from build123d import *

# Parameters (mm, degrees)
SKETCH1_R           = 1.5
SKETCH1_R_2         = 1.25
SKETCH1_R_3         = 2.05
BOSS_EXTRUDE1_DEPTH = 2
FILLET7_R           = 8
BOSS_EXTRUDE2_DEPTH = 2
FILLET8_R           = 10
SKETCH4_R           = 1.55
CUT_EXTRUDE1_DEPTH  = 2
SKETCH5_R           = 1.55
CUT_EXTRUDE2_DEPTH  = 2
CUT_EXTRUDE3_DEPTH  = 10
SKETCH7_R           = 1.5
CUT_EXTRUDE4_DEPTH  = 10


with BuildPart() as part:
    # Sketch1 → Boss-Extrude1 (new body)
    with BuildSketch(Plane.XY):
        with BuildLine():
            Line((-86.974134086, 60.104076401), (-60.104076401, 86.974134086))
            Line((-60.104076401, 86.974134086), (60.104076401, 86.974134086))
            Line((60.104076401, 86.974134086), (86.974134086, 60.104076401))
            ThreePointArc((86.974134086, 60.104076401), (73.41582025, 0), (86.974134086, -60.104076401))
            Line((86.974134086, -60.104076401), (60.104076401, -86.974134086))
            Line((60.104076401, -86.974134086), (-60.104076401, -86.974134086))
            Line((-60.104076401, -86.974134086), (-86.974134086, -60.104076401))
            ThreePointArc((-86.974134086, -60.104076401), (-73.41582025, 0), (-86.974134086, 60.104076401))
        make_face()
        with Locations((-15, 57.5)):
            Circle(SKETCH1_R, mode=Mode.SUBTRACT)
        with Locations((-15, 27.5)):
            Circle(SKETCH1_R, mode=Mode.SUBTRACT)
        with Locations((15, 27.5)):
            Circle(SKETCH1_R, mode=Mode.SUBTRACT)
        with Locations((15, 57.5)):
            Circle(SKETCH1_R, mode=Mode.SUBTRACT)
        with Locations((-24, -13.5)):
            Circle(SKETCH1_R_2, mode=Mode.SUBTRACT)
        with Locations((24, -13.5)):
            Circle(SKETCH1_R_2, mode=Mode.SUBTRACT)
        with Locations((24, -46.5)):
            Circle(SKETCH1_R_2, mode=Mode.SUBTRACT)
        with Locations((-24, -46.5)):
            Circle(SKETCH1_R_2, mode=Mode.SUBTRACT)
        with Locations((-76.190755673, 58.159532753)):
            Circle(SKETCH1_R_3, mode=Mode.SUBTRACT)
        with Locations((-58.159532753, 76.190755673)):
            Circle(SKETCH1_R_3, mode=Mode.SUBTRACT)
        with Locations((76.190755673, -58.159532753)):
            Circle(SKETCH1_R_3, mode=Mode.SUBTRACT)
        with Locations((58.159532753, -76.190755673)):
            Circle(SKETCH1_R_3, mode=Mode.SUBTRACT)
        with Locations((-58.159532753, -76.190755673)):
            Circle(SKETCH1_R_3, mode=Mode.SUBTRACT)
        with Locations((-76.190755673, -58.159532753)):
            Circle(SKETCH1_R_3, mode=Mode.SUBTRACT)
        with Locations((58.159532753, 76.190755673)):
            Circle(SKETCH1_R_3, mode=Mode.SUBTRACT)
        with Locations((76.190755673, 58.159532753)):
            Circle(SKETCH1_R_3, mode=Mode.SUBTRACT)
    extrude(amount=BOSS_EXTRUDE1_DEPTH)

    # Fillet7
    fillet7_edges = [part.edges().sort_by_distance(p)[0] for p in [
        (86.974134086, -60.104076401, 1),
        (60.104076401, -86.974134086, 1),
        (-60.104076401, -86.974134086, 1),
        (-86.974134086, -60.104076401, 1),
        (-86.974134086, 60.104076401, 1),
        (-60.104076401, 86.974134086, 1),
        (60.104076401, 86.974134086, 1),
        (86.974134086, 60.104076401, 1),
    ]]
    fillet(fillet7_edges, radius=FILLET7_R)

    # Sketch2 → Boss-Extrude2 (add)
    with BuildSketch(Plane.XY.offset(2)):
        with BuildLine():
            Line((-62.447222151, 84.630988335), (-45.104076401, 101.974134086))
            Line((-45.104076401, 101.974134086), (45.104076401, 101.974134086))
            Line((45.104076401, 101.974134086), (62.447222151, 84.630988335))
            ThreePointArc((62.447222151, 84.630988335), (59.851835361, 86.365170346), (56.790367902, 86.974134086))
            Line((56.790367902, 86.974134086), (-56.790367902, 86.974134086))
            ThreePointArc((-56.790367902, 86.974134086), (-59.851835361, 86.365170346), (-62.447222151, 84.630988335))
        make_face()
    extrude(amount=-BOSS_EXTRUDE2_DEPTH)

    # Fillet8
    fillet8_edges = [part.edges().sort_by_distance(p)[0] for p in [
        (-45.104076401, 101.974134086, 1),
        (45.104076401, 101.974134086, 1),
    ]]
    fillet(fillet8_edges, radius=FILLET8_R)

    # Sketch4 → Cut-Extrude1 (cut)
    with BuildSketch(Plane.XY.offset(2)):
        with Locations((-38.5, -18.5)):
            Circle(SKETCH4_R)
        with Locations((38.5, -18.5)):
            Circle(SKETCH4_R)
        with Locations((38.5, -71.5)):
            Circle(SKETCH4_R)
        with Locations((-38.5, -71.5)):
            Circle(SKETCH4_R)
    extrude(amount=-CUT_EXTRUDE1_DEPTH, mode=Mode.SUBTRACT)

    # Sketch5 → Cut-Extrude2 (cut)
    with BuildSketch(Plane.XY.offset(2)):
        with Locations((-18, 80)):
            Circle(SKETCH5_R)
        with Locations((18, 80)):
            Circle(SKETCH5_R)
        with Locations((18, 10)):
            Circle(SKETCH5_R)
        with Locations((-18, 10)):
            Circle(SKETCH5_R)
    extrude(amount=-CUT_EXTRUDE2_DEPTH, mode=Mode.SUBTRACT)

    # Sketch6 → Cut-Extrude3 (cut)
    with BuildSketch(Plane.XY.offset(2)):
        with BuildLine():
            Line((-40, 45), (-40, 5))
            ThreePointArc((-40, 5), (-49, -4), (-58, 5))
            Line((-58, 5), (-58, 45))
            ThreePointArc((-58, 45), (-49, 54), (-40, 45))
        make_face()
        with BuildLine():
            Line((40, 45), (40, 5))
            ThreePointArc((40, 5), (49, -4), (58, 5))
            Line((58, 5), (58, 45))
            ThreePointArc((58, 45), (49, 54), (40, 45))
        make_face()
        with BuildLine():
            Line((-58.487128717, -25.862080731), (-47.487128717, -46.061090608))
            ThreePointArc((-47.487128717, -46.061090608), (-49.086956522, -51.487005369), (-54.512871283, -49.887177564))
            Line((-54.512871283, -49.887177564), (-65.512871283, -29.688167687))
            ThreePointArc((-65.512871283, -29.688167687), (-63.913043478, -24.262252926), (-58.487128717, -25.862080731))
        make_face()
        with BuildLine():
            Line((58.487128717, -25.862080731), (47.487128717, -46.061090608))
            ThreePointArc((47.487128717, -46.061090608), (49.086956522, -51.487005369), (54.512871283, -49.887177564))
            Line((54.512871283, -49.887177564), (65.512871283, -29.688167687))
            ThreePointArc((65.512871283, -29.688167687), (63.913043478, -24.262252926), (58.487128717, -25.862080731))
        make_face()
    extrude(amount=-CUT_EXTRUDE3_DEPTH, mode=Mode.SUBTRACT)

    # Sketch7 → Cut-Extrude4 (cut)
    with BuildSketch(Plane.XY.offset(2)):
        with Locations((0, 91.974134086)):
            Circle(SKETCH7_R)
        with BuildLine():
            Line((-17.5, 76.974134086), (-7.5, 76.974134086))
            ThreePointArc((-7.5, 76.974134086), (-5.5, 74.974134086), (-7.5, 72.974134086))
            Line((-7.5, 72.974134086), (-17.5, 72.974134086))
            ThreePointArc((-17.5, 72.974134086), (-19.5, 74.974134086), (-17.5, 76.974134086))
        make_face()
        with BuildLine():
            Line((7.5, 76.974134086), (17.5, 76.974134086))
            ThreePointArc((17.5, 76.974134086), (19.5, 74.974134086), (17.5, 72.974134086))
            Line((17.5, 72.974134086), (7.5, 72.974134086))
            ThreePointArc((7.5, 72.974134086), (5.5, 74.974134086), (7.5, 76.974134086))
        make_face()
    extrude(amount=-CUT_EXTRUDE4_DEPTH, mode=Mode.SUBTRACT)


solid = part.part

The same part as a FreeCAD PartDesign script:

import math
import FreeCAD as App
import Part
import Sketcher

V = App.Vector


def edges_at(feature, points):
    """Names of the edges that pass closest to the given points."""
    edges = feature.Shape.Edges
    near = lambda p: min(range(len(edges)), key=lambda i: edges[i].distToShape(Part.Vertex(*p))[0])
    return sorted({f"Edge{near(p) + 1}" for p in points})

doc = App.newDocument("Part")
body = doc.addObject("PartDesign::Body", "Body")

# Sketch on XY plane
sketch1 = doc.addObject("Sketcher::SketchObject", "Sketch")
body.addObject(sketch1)
sketch1.AttachmentSupport = (doc.XY_Plane, [""])
sketch1.MapMode = "FlatFace"
sketch1.addGeometry(Part.LineSegment(V(-60.1, 87, 0), V(-87, 60.1, 0)), False)
sketch1.addGeometry(Part.ArcOfCircle(Part.Circle(V(-213.4, 0, 0), V(0, 0, 1), 140), math.radians(-25), math.radians(25)), False)
sketch1.addGeometry(Part.LineSegment(V(-87, -60.1, 0), V(-60.1, -87, 0)), False)
sketch1.addGeometry(Part.LineSegment(V(-60.1, -87, 0), V(60.1, -87, 0)), False)
sketch1.addGeometry(Part.LineSegment(V(60.1, -87, 0), V(87, -60.1, 0)), False)
sketch1.addGeometry(Part.ArcOfCircle(Part.Circle(V(213.4, 0, 0), V(0, 0, 1), 140), math.radians(155), math.radians(205)), False)
sketch1.addGeometry(Part.LineSegment(V(87, 60.1, 0), V(60.1, 87, 0)), False)
sketch1.addGeometry(Part.LineSegment(V(60.1, 87, 0), V(-60.1, 87, 0)), False)
sketch1.addGeometry(Part.Circle(V(58.2, -76.2, 0), V(0, 0, 1), 2), False)
sketch1.addGeometry(Part.Circle(V(76.2, -58.2, 0), V(0, 0, 1), 2), False)
sketch1.addGeometry(Part.Circle(V(24, -46.5, 0), V(0, 0, 1), 1.2), False)
sketch1.addGeometry(Part.Circle(V(24, -13.5, 0), V(0, 0, 1), 1.2), False)
sketch1.addGeometry(Part.Circle(V(-24, -46.5, 0), V(0, 0, 1), 1.2), False)
sketch1.addGeometry(Part.Circle(V(-58.2, -76.2, 0), V(0, 0, 1), 2), False)
sketch1.addGeometry(Part.Circle(V(-76.2, -58.2, 0), V(0, 0, 1), 2), False)
sketch1.addGeometry(Part.Circle(V(-24, -13.5, 0), V(0, 0, 1), 1.2), False)
sketch1.addGeometry(Part.Circle(V(15, 27.5, 0), V(0, 0, 1), 1.5), False)
sketch1.addGeometry(Part.Circle(V(76.2, 58.2, 0), V(0, 0, 1), 2), False)
sketch1.addGeometry(Part.Circle(V(58.2, 76.2, 0), V(0, 0, 1), 2), False)
sketch1.addGeometry(Part.Circle(V(15, 57.5, 0), V(0, 0, 1), 1.5), False)
sketch1.addGeometry(Part.Circle(V(-15, 27.5, 0), V(0, 0, 1), 1.5), False)
sketch1.addGeometry(Part.Circle(V(-15, 57.5, 0), V(0, 0, 1), 1.5), False)
sketch1.addGeometry(Part.Circle(V(-76.2, 58.2, 0), V(0, 0, 1), 2), False)
sketch1.addGeometry(Part.Circle(V(-58.2, 76.2, 0), V(0, 0, 1), 2), False)
sketch1.addConstraint(Sketcher.Constraint("Coincident", 0, 2, 1, 2))
sketch1.addConstraint(Sketcher.Constraint("Coincident", 1, 1, 2, 1))
sketch1.addConstraint(Sketcher.Constraint("Coincident", 2, 2, 3, 1))
sketch1.addConstraint(Sketcher.Constraint("Coincident", 3, 2, 4, 1))
sketch1.addConstraint(Sketcher.Constraint("Coincident", 4, 2, 5, 2))
sketch1.addConstraint(Sketcher.Constraint("Coincident", 5, 1, 6, 1))
sketch1.addConstraint(Sketcher.Constraint("Coincident", 6, 2, 7, 1))
sketch1.addConstraint(Sketcher.Constraint("Coincident", 7, 2, 0, 1))
sketch1.addConstraint(Sketcher.Constraint("Horizontal", 3))
sketch1.addConstraint(Sketcher.Constraint("Horizontal", 7))
sketch1.addConstraint(Sketcher.Constraint("Equal", 1, 5))
sketch1.addConstraint(Sketcher.Constraint("Equal", 8, 9))
sketch1.addConstraint(Sketcher.Constraint("Equal", 10, 11))
sketch1.addConstraint(Sketcher.Constraint("Equal", 11, 12))
sketch1.addConstraint(Sketcher.Constraint("Equal", 9, 13))
sketch1.addConstraint(Sketcher.Constraint("Equal", 13, 14))
sketch1.addConstraint(Sketcher.Constraint("Equal", 12, 15))
sketch1.addConstraint(Sketcher.Constraint("Equal", 14, 17))
sketch1.addConstraint(Sketcher.Constraint("Equal", 17, 18))
sketch1.addConstraint(Sketcher.Constraint("Equal", 16, 19))
sketch1.addConstraint(Sketcher.Constraint("Equal", 19, 20))
sketch1.addConstraint(Sketcher.Constraint("Equal", 20, 21))
sketch1.addConstraint(Sketcher.Constraint("Equal", 18, 22))
sketch1.addConstraint(Sketcher.Constraint("Equal", 22, 23))
sketch1.addConstraint(Sketcher.Constraint("Symmetric", 1, 3, 5, 3, -1, 1))
sketch1.addConstraint(Sketcher.Constraint("Symmetric", 14, 3, 17, 3, -1, 1))
sketch1.addConstraint(Sketcher.Constraint("Symmetric", 13, 3, 18, 3, -1, 1))
sketch1.addConstraint(Sketcher.Constraint("Symmetric", 9, 3, 22, 3, -1, 1))
sketch1.addConstraint(Sketcher.Constraint("Symmetric", 8, 3, 23, 3, -1, 1))
sketch1.addConstraint(Sketcher.Constraint("Symmetric", 2, 2, 6, 2, -1, 1))
sketch1.addConstraint(Sketcher.Constraint("Symmetric", 10, 3, 12, 3, -2))
sketch1.addConstraint(Sketcher.Constraint("Symmetric", 8, 3, 13, 3, -2))
sketch1.addConstraint(Sketcher.Constraint("Symmetric", 9, 3, 14, 3, -2))
sketch1.addConstraint(Sketcher.Constraint("Symmetric", 11, 3, 15, 3, -2))
sketch1.addConstraint(Sketcher.Constraint("Symmetric", 16, 3, 20, 3, -2))
sketch1.addConstraint(Sketcher.Constraint("Symmetric", 19, 3, 21, 3, -2))
sketch1.addConstraint(Sketcher.Constraint("Symmetric", 1, 1, 4, 2, -2))
sketch1.addConstraint(Sketcher.Constraint("Perpendicular", 0, 2))
sketch1.addConstraint(Sketcher.Constraint("Perpendicular", 2, 4))
sketch1.addConstraint(Sketcher.Constraint("Perpendicular", 4, 6))
sketch1.addConstraint(Sketcher.Constraint("Horizontal", 0, 2, 5, 1))
sketch1.addConstraint(Sketcher.Constraint("Vertical", 10, 3, 11, 3))
sketch1.addConstraint(Sketcher.Constraint("Vertical", 16, 3, 19, 3))
sketch1.addConstraint(Sketcher.Constraint("Vertical", 3, 2, 6, 2))
sketch1.addConstraint(Sketcher.Constraint("Diameter", 16, 3.0))
sketch1.addConstraint(Sketcher.Constraint("Radius", 1, 140.0))
sketch1.addConstraint(Sketcher.Constraint("Diameter", 8, 4.1))
sketch1.addConstraint(Sketcher.Constraint("Diameter", 10, 2.5))
sketch1.addConstraint(Sketcher.Constraint("Distance", 0, 38.0))
sketch1.addConstraint(Sketcher.Constraint("DistanceX", -1, 1, 10, 3, 24.0))
sketch1.addConstraint(Sketcher.Constraint("DistanceX", -1, 1, 16, 3, 15.0))
sketch1.addConstraint(Sketcher.Constraint("DistanceY", 10, 3, 11, 3, 33.0))
sketch1.addConstraint(Sketcher.Constraint("DistanceY", 11, 3, 16, 3, 41.0))
sketch1.addConstraint(Sketcher.Constraint("DistanceY", 16, 3, 19, 3, 30.0))
sketch1.addConstraint(Sketcher.Constraint("DistanceY", 10, 3, -1, 1, 46.5))
sketch1.addConstraint(Sketcher.Constraint("DistanceX", 0, 2, 23, 3, 28.814601))
sketch1.addConstraint(Sketcher.Constraint("DistanceY", 2, 2, 14, 3, 28.814601))
sketch1.addConstraint(Sketcher.Constraint("DistanceX", 3, 1, 3, 2, 120.208153))
sketch1.addConstraint(Sketcher.Constraint("DistanceX", 1, 3, -1, 1, 213.41582))
sketch1.addConstraint(Sketcher.Constraint("DistanceX", 13, 3, 9, 3, 134.350288))
sketch1.addConstraint(Sketcher.Constraint("DistanceY", 0, 2, 23, 3, 16.086679))
pad1 = doc.addObject("PartDesign::Pad", "Pad")
body.addObject(pad1)
pad1.Profile = sketch1
pad1.Length = 2
doc.recompute()

fillet = doc.addObject("PartDesign::Fillet", "Fillet")
body.addObject(fillet)
fillet.Base = (pad1, edges_at(pad1, [
    (86.974, -60.104, 1),
    (60.104, -86.974, 1),
    (-60.104, -86.974, 1),
    (-86.974, -60.104, 1),
    (-86.974, 60.104, 1),
    (-60.104, 86.974, 1),
    (60.104, 86.974, 1),
    (86.974, 60.104, 1),
]))
fillet.Radius = 8

# Sketch on XY plane
sketch2 = doc.addObject("Sketcher::SketchObject", "Sketch001")
body.addObject(sketch2)
sketch2.AttachmentSupport = (doc.XY_Plane, [""])
sketch2.MapMode = "FlatFace"
sketch2.AttachmentOffset = App.Placement(V(0, 0, 2), App.Rotation())
sketch2.addGeometry(Part.LineSegment(V(-45, 102, 0), V(-62, 85, 0)), False)
sketch2.addGeometry(Part.ArcOfCircle(Part.Circle(V(-57, 79, 0), V(0, 0, 1), 8), math.radians(90), math.radians(135)), False)
sketch2.addGeometry(Part.LineSegment(V(-57, 87, 0), V(57, 87, 0)), False)
sketch2.addGeometry(Part.ArcOfCircle(Part.Circle(V(57, 79, 0), V(0, 0, 1), 8), math.radians(45), math.radians(90)), False)
sketch2.addGeometry(Part.LineSegment(V(62, 85, 0), V(45, 102, 0)), False)
sketch2.addGeometry(Part.LineSegment(V(45, 102, 0), V(-45, 102, 0)), False)
sketch2.addConstraint(Sketcher.Constraint("Tangent", 0, 2, 1, 2))
sketch2.addConstraint(Sketcher.Constraint("Tangent", 1, 1, 2, 1))
sketch2.addConstraint(Sketcher.Constraint("Tangent", 2, 2, 3, 2))
sketch2.addConstraint(Sketcher.Constraint("Tangent", 3, 1, 4, 1))
sketch2.addConstraint(Sketcher.Constraint("Coincident", 4, 2, 5, 1))
sketch2.addConstraint(Sketcher.Constraint("Coincident", 5, 2, 0, 1))
sketch2.addConstraint(Sketcher.Constraint("Horizontal", 2))
sketch2.addConstraint(Sketcher.Constraint("Horizontal", 5))
sketch2.addConstraint(Sketcher.Constraint("Equal", 1, 3))
sketch2.addConstraint(Sketcher.Constraint("Symmetric", 0, 2, 3, 1, -2))
sketch2.addConstraint(Sketcher.Constraint("Perpendicular", 0, 4))
sketch2.addConstraint(Sketcher.Constraint("Radius", 1, 8.0))
sketch2.addConstraint(Sketcher.Constraint("DistanceY", 2, 2, 4, 2, 15.0))
sketch2.addConstraint(Sketcher.Constraint("DistanceX", 2, 1, 2, 2, 113.580736))
sketch2.addConstraint(Sketcher.Constraint("DistanceY", -1, 1, 0, 2, 84.630988))
pad2 = doc.addObject("PartDesign::Pad", "Pad001")
body.addObject(pad2)
pad2.Profile = sketch2
pad2.Length = 2
pad2.Reversed = True
doc.recompute()

fillet2 = doc.addObject("PartDesign::Fillet", "Fillet001")
body.addObject(fillet2)
fillet2.Base = (pad2, edges_at(pad2, [(-45.104, 101.974, 1), (45.104, 101.974, 1)]))
fillet2.Radius = 10

# Sketch on XY plane
sketch3 = doc.addObject("Sketcher::SketchObject", "Sketch002")
body.addObject(sketch3)
sketch3.AttachmentSupport = (doc.XY_Plane, [""])
sketch3.MapMode = "FlatFace"
sketch3.AttachmentOffset = App.Placement(V(0, 0, 2), App.Rotation())
sketch3.addGeometry(Part.Circle(V(-38.5, -18.5, 0), V(0, 0, 1), 1.6), False)
sketch3.addGeometry(Part.Circle(V(38.5, -18.5, 0), V(0, 0, 1), 1.6), False)
sketch3.addGeometry(Part.Circle(V(38.5, -71.5, 0), V(0, 0, 1), 1.6), False)
sketch3.addGeometry(Part.Circle(V(-38.5, -71.5, 0), V(0, 0, 1), 1.6), False)
sketch3.addConstraint(Sketcher.Constraint("Equal", 0, 1))
sketch3.addConstraint(Sketcher.Constraint("Equal", 1, 2))
sketch3.addConstraint(Sketcher.Constraint("Equal", 2, 3))
sketch3.addConstraint(Sketcher.Constraint("Symmetric", 0, 3, 1, 3, -2))
sketch3.addConstraint(Sketcher.Constraint("Symmetric", 2, 3, 3, 3, -2))
sketch3.addConstraint(Sketcher.Constraint("Vertical", 1, 3, 2, 3))
sketch3.addConstraint(Sketcher.Constraint("Diameter", 0, 3.1))
sketch3.addConstraint(Sketcher.Constraint("DistanceX", 0, 3, 1, 3, 77.0))
sketch3.addConstraint(Sketcher.Constraint("DistanceY", 2, 3, 1, 3, 53.0))
sketch3.addConstraint(Sketcher.Constraint("DistanceY", 0, 3, -1, 1, 18.5))
pocket1 = doc.addObject("PartDesign::Pocket", "Pocket")
body.addObject(pocket1)
pocket1.Profile = sketch3
pocket1.Length = 2

# Sketch on XY plane
sketch4 = doc.addObject("Sketcher::SketchObject", "Sketch003")
body.addObject(sketch4)
sketch4.AttachmentSupport = (doc.XY_Plane, [""])
sketch4.MapMode = "FlatFace"
sketch4.AttachmentOffset = App.Placement(V(0, 0, 2), App.Rotation())
sketch4.addGeometry(Part.Circle(V(-18, 80, 0), V(0, 0, 1), 1.6), False)
sketch4.addGeometry(Part.Circle(V(18, 80, 0), V(0, 0, 1), 1.6), False)
sketch4.addGeometry(Part.Circle(V(18, 10, 0), V(0, 0, 1), 1.6), False)
sketch4.addGeometry(Part.Circle(V(-18, 10, 0), V(0, 0, 1), 1.6), False)
sketch4.addConstraint(Sketcher.Constraint("Equal", 0, 1))
sketch4.addConstraint(Sketcher.Constraint("Equal", 1, 2))
sketch4.addConstraint(Sketcher.Constraint("Equal", 2, 3))
sketch4.addConstraint(Sketcher.Constraint("Symmetric", 0, 3, 1, 3, -2))
sketch4.addConstraint(Sketcher.Constraint("Symmetric", 2, 3, 3, 3, -2))
sketch4.addConstraint(Sketcher.Constraint("Vertical", 1, 3, 2, 3))
sketch4.addConstraint(Sketcher.Constraint("Diameter", 0, 3.1))
sketch4.addConstraint(Sketcher.Constraint("DistanceX", 0, 3, -1, 1, 18.0))
sketch4.addConstraint(Sketcher.Constraint("DistanceY", -1, 1, 0, 3, 80.0))
sketch4.addConstraint(Sketcher.Constraint("DistanceY", -1, 1, 2, 3, 10.0))
pocket2 = doc.addObject("PartDesign::Pocket", "Pocket001")
body.addObject(pocket2)
pocket2.Profile = sketch4
pocket2.Length = 2

# Sketch on XY plane
sketch5 = doc.addObject("Sketcher::SketchObject", "Sketch004")
body.addObject(sketch5)
sketch5.AttachmentSupport = (doc.XY_Plane, [""])
sketch5.MapMode = "FlatFace"
sketch5.AttachmentOffset = App.Placement(V(0, 0, 2), App.Rotation())
sketch5.addGeometry(Part.LineSegment(V(-40, 5, 0), V(-40, 45, 0)), False)
sketch5.addGeometry(Part.ArcOfCircle(Part.Circle(V(-49, 45, 0), V(0, 0, 1), 9), math.radians(0), math.radians(180)), False)
sketch5.addGeometry(Part.LineSegment(V(-58, 45, 0), V(-58, 5, 0)), False)
sketch5.addGeometry(Part.ArcOfCircle(Part.Circle(V(-49, 5, 0), V(0, 0, 1), 9), math.radians(180), math.radians(360)), False)
sketch5.addGeometry(Part.LineSegment(V(40, 45, 0), V(40, 5, 0)), False)
sketch5.addGeometry(Part.ArcOfCircle(Part.Circle(V(49, 5, 0), V(0, 0, 1), 9), math.radians(180), math.radians(360)), False)
sketch5.addGeometry(Part.LineSegment(V(58, 5, 0), V(58, 45, 0)), False)
sketch5.addGeometry(Part.ArcOfCircle(Part.Circle(V(49, 45, 0), V(0, 0, 1), 9), math.radians(0), math.radians(180)), False)
sketch5.addGeometry(Part.LineSegment(V(-47.5, -46.1, 0), V(-58.5, -25.9, 0)), False)
sketch5.addGeometry(Part.ArcOfCircle(Part.Circle(V(-62, -27.8, 0), V(0, 0, 1), 4), math.radians(29), math.radians(209)), False)
sketch5.addGeometry(Part.LineSegment(V(-65.5, -29.7, 0), V(-54.5, -49.9, 0)), False)
sketch5.addGeometry(Part.ArcOfCircle(Part.Circle(V(-51, -48, 0), V(0, 0, 1), 4), math.radians(-151), math.radians(29)), False)
sketch5.addGeometry(Part.LineSegment(V(58.5, -25.9, 0), V(47.5, -46.1, 0)), False)
sketch5.addGeometry(Part.ArcOfCircle(Part.Circle(V(51, -48, 0), V(0, 0, 1), 4), math.radians(151), math.radians(331)), False)
sketch5.addGeometry(Part.LineSegment(V(54.5, -49.9, 0), V(65.5, -29.7, 0)), False)
sketch5.addGeometry(Part.ArcOfCircle(Part.Circle(V(62, -27.8, 0), V(0, 0, 1), 4), math.radians(-29), math.radians(151)), False)
sketch5.addConstraint(Sketcher.Constraint("Tangent", 0, 2, 1, 1))
sketch5.addConstraint(Sketcher.Constraint("Tangent", 1, 2, 2, 1))
sketch5.addConstraint(Sketcher.Constraint("Tangent", 2, 2, 3, 1))
sketch5.addConstraint(Sketcher.Constraint("Tangent", 3, 2, 0, 1))
sketch5.addConstraint(Sketcher.Constraint("Tangent", 4, 2, 5, 1))
sketch5.addConstraint(Sketcher.Constraint("Tangent", 5, 2, 6, 1))
sketch5.addConstraint(Sketcher.Constraint("Tangent", 6, 2, 7, 1))
sketch5.addConstraint(Sketcher.Constraint("Tangent", 7, 2, 4, 1))
sketch5.addConstraint(Sketcher.Constraint("Tangent", 8, 2, 9, 1))
sketch5.addConstraint(Sketcher.Constraint("Tangent", 9, 2, 10, 1))
sketch5.addConstraint(Sketcher.Constraint("Tangent", 10, 2, 11, 1))
sketch5.addConstraint(Sketcher.Constraint("Tangent", 11, 2, 8, 1))
sketch5.addConstraint(Sketcher.Constraint("Tangent", 12, 2, 13, 1))
sketch5.addConstraint(Sketcher.Constraint("Tangent", 13, 2, 14, 1))
sketch5.addConstraint(Sketcher.Constraint("Tangent", 14, 2, 15, 1))
sketch5.addConstraint(Sketcher.Constraint("Tangent", 15, 2, 12, 1))
sketch5.addConstraint(Sketcher.Constraint("Vertical", 0))
sketch5.addConstraint(Sketcher.Constraint("Vertical", 2))
sketch5.addConstraint(Sketcher.Constraint("Vertical", 4))
sketch5.addConstraint(Sketcher.Constraint("Vertical", 6))
sketch5.addConstraint(Sketcher.Constraint("Equal", 3, 5))
sketch5.addConstraint(Sketcher.Constraint("Equal", 9, 11))
sketch5.addConstraint(Sketcher.Constraint("Equal", 11, 13))
sketch5.addConstraint(Sketcher.Constraint("Equal", 13, 15))
sketch5.addConstraint(Sketcher.Constraint("Symmetric", 3, 3, 5, 3, -2))
sketch5.addConstraint(Sketcher.Constraint("Symmetric", 11, 3, 13, 3, -2))
sketch5.addConstraint(Sketcher.Constraint("Symmetric", 9, 3, 15, 3, -2))
sketch5.addConstraint(Sketcher.Constraint("Horizontal", 1, 3, 7, 3))
sketch5.addConstraint(Sketcher.Constraint("Radius", 1, 9.0))
sketch5.addConstraint(Sketcher.Constraint("Radius", 9, 4.0))
sketch5.addConstraint(Sketcher.Constraint("DistanceY", 0, 1, 0, 2, 40.0))
sketch5.addConstraint(Sketcher.Constraint("Distance", 8, 23.0))
sketch5.addConstraint(Sketcher.Constraint("DistanceX", 1, 3, -1, 1, 49.0))
sketch5.addConstraint(Sketcher.Constraint("DistanceY", -1, 1, 1, 3, 45.0))
sketch5.addConstraint(Sketcher.Constraint("DistanceX", 9, 3, -1, 1, 62.0))
sketch5.addConstraint(Sketcher.Constraint("DistanceX", 11, 3, -1, 1, 51.0))
sketch5.addConstraint(Sketcher.Constraint("DistanceY", 8, 2, -1, 1, 25.862081))
pocket3 = doc.addObject("PartDesign::Pocket", "Pocket002")
body.addObject(pocket3)
pocket3.Profile = sketch5
pocket3.Length = 10

# Sketch on XY plane
sketch6 = doc.addObject("Sketcher::SketchObject", "Sketch005")
body.addObject(sketch6)
sketch6.AttachmentSupport = (doc.XY_Plane, [""])
sketch6.MapMode = "FlatFace"
sketch6.AttachmentOffset = App.Placement(V(0, 0, 2), App.Rotation())
sketch6.addGeometry(Part.Circle(V(0, 92, 0), V(0, 0, 1), 1.5), False)
sketch6.addGeometry(Part.LineSegment(V(-7.5, 77, 0), V(-17.5, 77, 0)), False)
sketch6.addGeometry(Part.ArcOfCircle(Part.Circle(V(-17.5, 75, 0), V(0, 0, 1), 2), math.radians(90), math.radians(270)), False)
sketch6.addGeometry(Part.LineSegment(V(-17.5, 73, 0), V(-7.5, 73, 0)), False)
sketch6.addGeometry(Part.ArcOfCircle(Part.Circle(V(-7.5, 75, 0), V(0, 0, 1), 2), math.radians(-90), math.radians(90)), False)
sketch6.addGeometry(Part.LineSegment(V(17.5, 77, 0), V(7.5, 77, 0)), False)
sketch6.addGeometry(Part.ArcOfCircle(Part.Circle(V(7.5, 75, 0), V(0, 0, 1), 2), math.radians(90), math.radians(270)), False)
sketch6.addGeometry(Part.LineSegment(V(7.5, 73, 0), V(17.5, 73, 0)), False)
sketch6.addGeometry(Part.ArcOfCircle(Part.Circle(V(17.5, 75, 0), V(0, 0, 1), 2), math.radians(-90), math.radians(90)), False)
sketch6.addConstraint(Sketcher.Constraint("Tangent", 1, 2, 2, 1))
sketch6.addConstraint(Sketcher.Constraint("Tangent", 2, 2, 3, 1))
sketch6.addConstraint(Sketcher.Constraint("Tangent", 3, 2, 4, 1))
sketch6.addConstraint(Sketcher.Constraint("Tangent", 4, 2, 1, 1))
sketch6.addConstraint(Sketcher.Constraint("Tangent", 5, 2, 6, 1))
sketch6.addConstraint(Sketcher.Constraint("Tangent", 6, 2, 7, 1))
sketch6.addConstraint(Sketcher.Constraint("Tangent", 7, 2, 8, 1))
sketch6.addConstraint(Sketcher.Constraint("Tangent", 8, 2, 5, 1))
sketch6.addConstraint(Sketcher.Constraint("Horizontal", 1))
sketch6.addConstraint(Sketcher.Constraint("Horizontal", 3))
sketch6.addConstraint(Sketcher.Constraint("Horizontal", 5))
sketch6.addConstraint(Sketcher.Constraint("Horizontal", 7))
sketch6.addConstraint(Sketcher.Constraint("Equal", 4, 6))
sketch6.addConstraint(Sketcher.Constraint("Symmetric", 4, 3, 6, 3, -2))
sketch6.addConstraint(Sketcher.Constraint("PointOnObject", 0, 3, -2))
sketch6.addConstraint(Sketcher.Constraint("Equal", 3, 5))
sketch6.addConstraint(Sketcher.Constraint("Diameter", 0, 3.0))
sketch6.addConstraint(Sketcher.Constraint("Radius", 2, 2.0))
sketch6.addConstraint(Sketcher.Constraint("DistanceX", 1, 2, 1, 1, 10.0))
sketch6.addConstraint(Sketcher.Constraint("DistanceY", 2, 3, 0, 3, 17.0))
sketch6.addConstraint(Sketcher.Constraint("DistanceX", 4, 3, 6, 3, 15.0))
sketch6.addConstraint(Sketcher.Constraint("DistanceY", -1, 1, 0, 3, 91.974134))
pocket4 = doc.addObject("PartDesign::Pocket", "Pocket003")
body.addObject(pocket4)
pocket4.Profile = sketch6
pocket4.Length = 10

doc.recompute()
